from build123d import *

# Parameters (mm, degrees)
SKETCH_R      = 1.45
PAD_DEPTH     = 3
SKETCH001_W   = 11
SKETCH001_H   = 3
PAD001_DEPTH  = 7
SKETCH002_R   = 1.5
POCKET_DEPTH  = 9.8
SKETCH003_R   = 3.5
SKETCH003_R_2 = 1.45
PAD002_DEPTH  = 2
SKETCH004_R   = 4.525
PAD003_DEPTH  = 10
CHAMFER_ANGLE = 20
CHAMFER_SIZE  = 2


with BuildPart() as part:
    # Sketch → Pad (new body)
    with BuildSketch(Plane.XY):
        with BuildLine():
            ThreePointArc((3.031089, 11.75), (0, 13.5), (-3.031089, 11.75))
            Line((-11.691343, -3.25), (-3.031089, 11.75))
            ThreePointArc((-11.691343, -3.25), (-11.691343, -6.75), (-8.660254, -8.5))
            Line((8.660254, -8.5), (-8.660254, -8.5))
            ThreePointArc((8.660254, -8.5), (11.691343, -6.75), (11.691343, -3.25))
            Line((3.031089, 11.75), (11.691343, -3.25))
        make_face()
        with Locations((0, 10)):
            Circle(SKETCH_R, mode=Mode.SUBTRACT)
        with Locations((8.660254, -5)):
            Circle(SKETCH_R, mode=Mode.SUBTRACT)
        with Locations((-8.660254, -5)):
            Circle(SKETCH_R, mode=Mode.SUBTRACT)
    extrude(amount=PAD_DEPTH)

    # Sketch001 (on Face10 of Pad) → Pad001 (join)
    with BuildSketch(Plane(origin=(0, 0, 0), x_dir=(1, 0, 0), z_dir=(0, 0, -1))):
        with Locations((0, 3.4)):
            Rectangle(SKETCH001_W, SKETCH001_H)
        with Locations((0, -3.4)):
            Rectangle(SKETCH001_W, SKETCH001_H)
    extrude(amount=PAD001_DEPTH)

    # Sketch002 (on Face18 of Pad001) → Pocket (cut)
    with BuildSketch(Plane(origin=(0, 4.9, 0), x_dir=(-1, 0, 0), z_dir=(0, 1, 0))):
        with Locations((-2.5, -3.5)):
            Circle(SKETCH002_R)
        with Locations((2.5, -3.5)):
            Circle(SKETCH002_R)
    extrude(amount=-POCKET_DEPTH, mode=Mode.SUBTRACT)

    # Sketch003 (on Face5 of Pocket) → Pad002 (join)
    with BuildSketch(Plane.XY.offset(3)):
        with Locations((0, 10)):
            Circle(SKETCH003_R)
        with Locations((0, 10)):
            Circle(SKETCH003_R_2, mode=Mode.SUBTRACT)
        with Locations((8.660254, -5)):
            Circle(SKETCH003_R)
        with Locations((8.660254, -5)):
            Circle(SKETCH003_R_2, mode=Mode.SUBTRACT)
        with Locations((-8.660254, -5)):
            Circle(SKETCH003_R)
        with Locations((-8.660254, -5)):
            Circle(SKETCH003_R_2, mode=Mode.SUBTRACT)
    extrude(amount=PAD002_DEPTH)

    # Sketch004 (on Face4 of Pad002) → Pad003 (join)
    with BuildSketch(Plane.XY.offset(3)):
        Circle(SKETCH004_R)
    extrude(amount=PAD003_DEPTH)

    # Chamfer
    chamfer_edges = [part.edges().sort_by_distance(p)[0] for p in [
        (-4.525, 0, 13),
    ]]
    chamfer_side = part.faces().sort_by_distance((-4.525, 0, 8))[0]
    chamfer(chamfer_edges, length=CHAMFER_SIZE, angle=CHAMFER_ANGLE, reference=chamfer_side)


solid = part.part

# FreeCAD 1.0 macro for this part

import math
import FreeCAD as App
import Part
import Sketcher
from FreeCAD import Vector
Q = App.Units.Quantity


def edges_at(feature, points):
    """Names of the edges that pass closest to the given points."""
    edges = feature.Shape.Edges
    near = lambda p: min(range(len(edges)), key=lambda i: edges[i].distToShape(Part.Vertex(*p))[0])
    return sorted({f"Edge{near(p) + 1}" for p in points})


def add_polygon(sketch, points):
    """Adds a closed chain of lines whose ends are joined by coincident constraints."""
    first, n = sketch.GeometryCount, len(points)
    for a, b in zip(points, points[1:] + points[:1]):
        sketch.addGeometry(Part.LineSegment(App.Vector(*a, 0), App.Vector(*b, 0)), False)
    for i in range(n):
        sketch.addConstraint(Sketcher.Constraint("Coincident", first + i, 2, first + (i + 1) % n, 1))

doc = App.newDocument("Part")
body = doc.addObject("PartDesign::Body", "Body")

sketch1 = body.newObject("Sketcher::SketchObject", "Sketch")
sketch1.AttachmentSupport = (doc.getObject("XY_Plane"), [""])
sketch1.MapMode = "FlatFace"
sketch1.addGeometry([
    Part.ArcOfCircle(Part.Circle(Vector(0, 10, 0), Vector(0, 0, 1), 3.5), math.radians(30), math.radians(150)),
    Part.LineSegment(Vector(-3, 11.8, 0), Vector(-11.7, -3.2, 0)),
    Part.ArcOfCircle(Part.Circle(Vector(-8.7, -5, 0), Vector(0, 0, 1), 3.5), math.radians(150), math.radians(270)),
    Part.LineSegment(Vector(-8.7, -8.5, 0), Vector(8.7, -8.5, 0)),
    Part.ArcOfCircle(Part.Circle(Vector(8.7, -5, 0), Vector(0, 0, 1), 3.5), math.radians(-90), math.radians(30)),
    Part.LineSegment(Vector(11.7, -3.2, 0), Vector(3, 11.8, 0)),
    Part.Circle(Vector(-8.7, -5, 0), Vector(0, 0, 1), 1.4),
    Part.Circle(Vector(8.7, -5, 0), Vector(0, 0, 1), 1.4),
    Part.Circle(Vector(0, 10, 0), Vector(0, 0, 1), 1.4),
], False)
sketch1.addConstraint([
    Sketcher.Constraint("Tangent", 0, 2, 1, 1),
    Sketcher.Constraint("Tangent", 1, 2, 2, 1),
    Sketcher.Constraint("Tangent", 2, 2, 3, 1),
    Sketcher.Constraint("Tangent", 3, 2, 4, 1),
    Sketcher.Constraint("Tangent", 4, 2, 5, 1),
    Sketcher.Constraint("Tangent", 5, 2, 0, 1),
    Sketcher.Constraint("Horizontal", 3),
    Sketcher.Constraint("Coincident", 6, 3, 2, 3),
    Sketcher.Constraint("Coincident", 7, 3, 4, 3),
    Sketcher.Constraint("Coincident", 8, 3, 0, 3),
    Sketcher.Constraint("Equal", 0, 2),
    Sketcher.Constraint("Equal", 2, 4),
    Sketcher.Constraint("Equal", 6, 7),
    Sketcher.Constraint("Equal", 7, 8),
    Sketcher.Constraint("Symmetric", 1, 2, 4, 2, -2),
    Sketcher.Constraint("Diameter", 6, 2.9),
    Sketcher.Constraint("Radius", 0, 3.5),
    Sketcher.Constraint("Angle", 1, Q("-120 deg")),
    Sketcher.Constraint("DistanceY", -1, 1, 0, 3, 10.0),
    Sketcher.Constraint("DistanceY", 2, 3, -1, 1, 5.0),
])
pad1 = body.newObject("PartDesign::Pad", "Pad")
pad1.Profile = sketch1
pad1.Length = 3

sketch2 = body.newObject("Sketcher::SketchObject", "Sketch001")
sketch2.AttachmentSupport = (doc.getObject("XY_Plane"), [""])
sketch2.MapMode = "FlatFace"
add_polygon(sketch2, [(-5.5, -4.9), (-5.5, -1.9), (5.5, -1.9), (5.5, -4.9)])
add_polygon(sketch2, [(-5.5, 1.9), (-5.5, 4.9), (5.5, 4.9), (5.5, 1.9)])
sketch2.addConstraint([
    Sketcher.Constraint("Vertical", 0),
    Sketcher.Constraint("Horizontal", 1),
    Sketcher.Constraint("Vertical", 2),
    Sketcher.Constraint("Horizontal", 3),
    Sketcher.Constraint("Vertical", 4),
    Sketcher.Constraint("Horizontal", 5),
    Sketcher.Constraint("Vertical", 6),
    Sketcher.Constraint("Horizontal", 7),
    Sketcher.Constraint("Symmetric", 2, 2, 4, 2, -1, 1),
    Sketcher.Constraint("Symmetric", 0, 2, 6, 2, -1, 1),
    Sketcher.Constraint("Vertical", 3, 2, 4, 2),
    Sketcher.Constraint("DistanceX", 1, 1, 1, 2, 11.0),
    Sketcher.Constraint("DistanceY", 0, 1, 0, 2, 3.0),
    Sketcher.Constraint("DistanceY", 0, 2, -1, 1, 1.9),
])
pad2 = body.newObject("PartDesign::Pad", "Pad001")
pad2.Profile = sketch2
pad2.Length = 7
pad2.Reversed = True

sketch3 = body.newObject("Sketcher::SketchObject", "Sketch002")
sketch3.AttachmentSupport = (doc.getObject("XZ_Plane"), [""])
sketch3.MapMode = "FlatFace"
sketch3.AttachmentOffset = App.Placement(Vector(0, 0, -4.9), App.Rotation())
sketch3.addGeometry([
    Part.Circle(Vector(2.5, -3.5, 0), Vector(0, 0, 1), 1.5),
    Part.Circle(Vector(-2.5, -3.5, 0), Vector(0, 0, 1), 1.5),
], False)
sketch3.addConstraint([
    Sketcher.Constraint("Equal", 0, 1),
    Sketcher.Constraint("Symmetric", 0, 3, 1, 3, -2),
    Sketcher.Constraint("Diameter", 0, 3.0),
    Sketcher.Constraint("DistanceX", 1, 3, 0, 3, 5.0),
    Sketcher.Constraint("DistanceY", 0, 3, -1, 1, 3.5),
])
pocket1 = body.newObject("PartDesign::Pocket", "Pocket")
pocket1.Profile = sketch3
pocket1.Length = 9.8
pocket1.Reversed = True

sketch4 = body.newObject("Sketcher::SketchObject", "Sketch003")
sketch4.AttachmentSupport = (doc.getObject("XY_Plane"), [""])
sketch4.MapMode = "FlatFace"
sketch4.AttachmentOffset = App.Placement(Vector(0, 0, 3), App.Rotation())
sketch4.addGeometry([
    Part.Circle(Vector(0, 10, 0), Vector(0, 0, 1), 3.5),
    Part.Circle(Vector(0, 10, 0), Vector(0, 0, 1), 1.4),
    Part.Circle(Vector(8.7, -5, 0), Vector(0, 0, 1), 3.5),
    Part.Circle(Vector(8.7, -5, 0), Vector(0, 0, 1), 1.4),
    Part.Circle(Vector(-8.7, -5, 0), Vector(0, 0, 1), 3.5),
    Part.Circle(Vector(-8.7, -5, 0), Vector(0, 0, 1), 1.4),
], False)
sketch4.addConstraint([
    Sketcher.Constraint("Coincident", 1, 3, 0, 3),
    Sketcher.Constraint("Coincident", 3, 3, 2, 3),
    Sketcher.Constraint("Coincident", 5, 3, 4, 3),
    Sketcher.Constraint("Equal", 0, 2),
    Sketcher.Constraint("Equal", 1, 3),
    Sketcher.Constraint("Equal", 2, 4),
    Sketcher.Constraint("Equal", 3, 5),
    Sketcher.Constraint("Symmetric", 2, 3, 4, 3, -2),
    Sketcher.Constraint("PointOnObject", 0, 3, -2),
    Sketcher.Constraint("Diameter", 0, 7.0),
    Sketcher.Constraint("Diameter", 1, 2.9),
    Sketcher.Constraint("DistanceY", -1, 1, 0, 3, 10.0),
    Sketcher.Constraint("DistanceY", 2, 3, -1, 1, 5.0),
    Sketcher.Constraint("DistanceX", 4, 3, 2, 3, 17.320508),
])
pad3 = body.newObject("PartDesign::Pad", "Pad002")
pad3.Profile = sketch4
pad3.Length = 2

sketch5 = body.newObject("Sketcher::SketchObject", "Sketch004")
sketch5.AttachmentSupport = (doc.getObject("XY_Plane"), [""])
sketch5.MapMode = "FlatFace"
sketch5.AttachmentOffset = App.Placement(Vector(0, 0, 3), App.Rotation())
sketch5.addGeometry(Part.Circle(Vector(0, 0, 0), Vector(0, 0, 1), 4.5), False)
sketch5.addConstraint([
    Sketcher.Constraint("Coincident", 0, 3, -1, 1),
    Sketcher.Constraint("Diameter", 0, 9.05),
])
pad4 = body.newObject("PartDesign::Pad", "Pad003")
pad4.Profile = sketch5
pad4.Length = 10
doc.recompute()

chamfer = body.newObject("PartDesign::Chamfer", "Chamfer")
chamfer.Base = (pad4, edges_at(pad4, [(-4.525, 0, 13)]))
chamfer.ChamferType = "Distance and Angle"
chamfer.Size = 2
chamfer.Angle = 20

doc.recompute()
